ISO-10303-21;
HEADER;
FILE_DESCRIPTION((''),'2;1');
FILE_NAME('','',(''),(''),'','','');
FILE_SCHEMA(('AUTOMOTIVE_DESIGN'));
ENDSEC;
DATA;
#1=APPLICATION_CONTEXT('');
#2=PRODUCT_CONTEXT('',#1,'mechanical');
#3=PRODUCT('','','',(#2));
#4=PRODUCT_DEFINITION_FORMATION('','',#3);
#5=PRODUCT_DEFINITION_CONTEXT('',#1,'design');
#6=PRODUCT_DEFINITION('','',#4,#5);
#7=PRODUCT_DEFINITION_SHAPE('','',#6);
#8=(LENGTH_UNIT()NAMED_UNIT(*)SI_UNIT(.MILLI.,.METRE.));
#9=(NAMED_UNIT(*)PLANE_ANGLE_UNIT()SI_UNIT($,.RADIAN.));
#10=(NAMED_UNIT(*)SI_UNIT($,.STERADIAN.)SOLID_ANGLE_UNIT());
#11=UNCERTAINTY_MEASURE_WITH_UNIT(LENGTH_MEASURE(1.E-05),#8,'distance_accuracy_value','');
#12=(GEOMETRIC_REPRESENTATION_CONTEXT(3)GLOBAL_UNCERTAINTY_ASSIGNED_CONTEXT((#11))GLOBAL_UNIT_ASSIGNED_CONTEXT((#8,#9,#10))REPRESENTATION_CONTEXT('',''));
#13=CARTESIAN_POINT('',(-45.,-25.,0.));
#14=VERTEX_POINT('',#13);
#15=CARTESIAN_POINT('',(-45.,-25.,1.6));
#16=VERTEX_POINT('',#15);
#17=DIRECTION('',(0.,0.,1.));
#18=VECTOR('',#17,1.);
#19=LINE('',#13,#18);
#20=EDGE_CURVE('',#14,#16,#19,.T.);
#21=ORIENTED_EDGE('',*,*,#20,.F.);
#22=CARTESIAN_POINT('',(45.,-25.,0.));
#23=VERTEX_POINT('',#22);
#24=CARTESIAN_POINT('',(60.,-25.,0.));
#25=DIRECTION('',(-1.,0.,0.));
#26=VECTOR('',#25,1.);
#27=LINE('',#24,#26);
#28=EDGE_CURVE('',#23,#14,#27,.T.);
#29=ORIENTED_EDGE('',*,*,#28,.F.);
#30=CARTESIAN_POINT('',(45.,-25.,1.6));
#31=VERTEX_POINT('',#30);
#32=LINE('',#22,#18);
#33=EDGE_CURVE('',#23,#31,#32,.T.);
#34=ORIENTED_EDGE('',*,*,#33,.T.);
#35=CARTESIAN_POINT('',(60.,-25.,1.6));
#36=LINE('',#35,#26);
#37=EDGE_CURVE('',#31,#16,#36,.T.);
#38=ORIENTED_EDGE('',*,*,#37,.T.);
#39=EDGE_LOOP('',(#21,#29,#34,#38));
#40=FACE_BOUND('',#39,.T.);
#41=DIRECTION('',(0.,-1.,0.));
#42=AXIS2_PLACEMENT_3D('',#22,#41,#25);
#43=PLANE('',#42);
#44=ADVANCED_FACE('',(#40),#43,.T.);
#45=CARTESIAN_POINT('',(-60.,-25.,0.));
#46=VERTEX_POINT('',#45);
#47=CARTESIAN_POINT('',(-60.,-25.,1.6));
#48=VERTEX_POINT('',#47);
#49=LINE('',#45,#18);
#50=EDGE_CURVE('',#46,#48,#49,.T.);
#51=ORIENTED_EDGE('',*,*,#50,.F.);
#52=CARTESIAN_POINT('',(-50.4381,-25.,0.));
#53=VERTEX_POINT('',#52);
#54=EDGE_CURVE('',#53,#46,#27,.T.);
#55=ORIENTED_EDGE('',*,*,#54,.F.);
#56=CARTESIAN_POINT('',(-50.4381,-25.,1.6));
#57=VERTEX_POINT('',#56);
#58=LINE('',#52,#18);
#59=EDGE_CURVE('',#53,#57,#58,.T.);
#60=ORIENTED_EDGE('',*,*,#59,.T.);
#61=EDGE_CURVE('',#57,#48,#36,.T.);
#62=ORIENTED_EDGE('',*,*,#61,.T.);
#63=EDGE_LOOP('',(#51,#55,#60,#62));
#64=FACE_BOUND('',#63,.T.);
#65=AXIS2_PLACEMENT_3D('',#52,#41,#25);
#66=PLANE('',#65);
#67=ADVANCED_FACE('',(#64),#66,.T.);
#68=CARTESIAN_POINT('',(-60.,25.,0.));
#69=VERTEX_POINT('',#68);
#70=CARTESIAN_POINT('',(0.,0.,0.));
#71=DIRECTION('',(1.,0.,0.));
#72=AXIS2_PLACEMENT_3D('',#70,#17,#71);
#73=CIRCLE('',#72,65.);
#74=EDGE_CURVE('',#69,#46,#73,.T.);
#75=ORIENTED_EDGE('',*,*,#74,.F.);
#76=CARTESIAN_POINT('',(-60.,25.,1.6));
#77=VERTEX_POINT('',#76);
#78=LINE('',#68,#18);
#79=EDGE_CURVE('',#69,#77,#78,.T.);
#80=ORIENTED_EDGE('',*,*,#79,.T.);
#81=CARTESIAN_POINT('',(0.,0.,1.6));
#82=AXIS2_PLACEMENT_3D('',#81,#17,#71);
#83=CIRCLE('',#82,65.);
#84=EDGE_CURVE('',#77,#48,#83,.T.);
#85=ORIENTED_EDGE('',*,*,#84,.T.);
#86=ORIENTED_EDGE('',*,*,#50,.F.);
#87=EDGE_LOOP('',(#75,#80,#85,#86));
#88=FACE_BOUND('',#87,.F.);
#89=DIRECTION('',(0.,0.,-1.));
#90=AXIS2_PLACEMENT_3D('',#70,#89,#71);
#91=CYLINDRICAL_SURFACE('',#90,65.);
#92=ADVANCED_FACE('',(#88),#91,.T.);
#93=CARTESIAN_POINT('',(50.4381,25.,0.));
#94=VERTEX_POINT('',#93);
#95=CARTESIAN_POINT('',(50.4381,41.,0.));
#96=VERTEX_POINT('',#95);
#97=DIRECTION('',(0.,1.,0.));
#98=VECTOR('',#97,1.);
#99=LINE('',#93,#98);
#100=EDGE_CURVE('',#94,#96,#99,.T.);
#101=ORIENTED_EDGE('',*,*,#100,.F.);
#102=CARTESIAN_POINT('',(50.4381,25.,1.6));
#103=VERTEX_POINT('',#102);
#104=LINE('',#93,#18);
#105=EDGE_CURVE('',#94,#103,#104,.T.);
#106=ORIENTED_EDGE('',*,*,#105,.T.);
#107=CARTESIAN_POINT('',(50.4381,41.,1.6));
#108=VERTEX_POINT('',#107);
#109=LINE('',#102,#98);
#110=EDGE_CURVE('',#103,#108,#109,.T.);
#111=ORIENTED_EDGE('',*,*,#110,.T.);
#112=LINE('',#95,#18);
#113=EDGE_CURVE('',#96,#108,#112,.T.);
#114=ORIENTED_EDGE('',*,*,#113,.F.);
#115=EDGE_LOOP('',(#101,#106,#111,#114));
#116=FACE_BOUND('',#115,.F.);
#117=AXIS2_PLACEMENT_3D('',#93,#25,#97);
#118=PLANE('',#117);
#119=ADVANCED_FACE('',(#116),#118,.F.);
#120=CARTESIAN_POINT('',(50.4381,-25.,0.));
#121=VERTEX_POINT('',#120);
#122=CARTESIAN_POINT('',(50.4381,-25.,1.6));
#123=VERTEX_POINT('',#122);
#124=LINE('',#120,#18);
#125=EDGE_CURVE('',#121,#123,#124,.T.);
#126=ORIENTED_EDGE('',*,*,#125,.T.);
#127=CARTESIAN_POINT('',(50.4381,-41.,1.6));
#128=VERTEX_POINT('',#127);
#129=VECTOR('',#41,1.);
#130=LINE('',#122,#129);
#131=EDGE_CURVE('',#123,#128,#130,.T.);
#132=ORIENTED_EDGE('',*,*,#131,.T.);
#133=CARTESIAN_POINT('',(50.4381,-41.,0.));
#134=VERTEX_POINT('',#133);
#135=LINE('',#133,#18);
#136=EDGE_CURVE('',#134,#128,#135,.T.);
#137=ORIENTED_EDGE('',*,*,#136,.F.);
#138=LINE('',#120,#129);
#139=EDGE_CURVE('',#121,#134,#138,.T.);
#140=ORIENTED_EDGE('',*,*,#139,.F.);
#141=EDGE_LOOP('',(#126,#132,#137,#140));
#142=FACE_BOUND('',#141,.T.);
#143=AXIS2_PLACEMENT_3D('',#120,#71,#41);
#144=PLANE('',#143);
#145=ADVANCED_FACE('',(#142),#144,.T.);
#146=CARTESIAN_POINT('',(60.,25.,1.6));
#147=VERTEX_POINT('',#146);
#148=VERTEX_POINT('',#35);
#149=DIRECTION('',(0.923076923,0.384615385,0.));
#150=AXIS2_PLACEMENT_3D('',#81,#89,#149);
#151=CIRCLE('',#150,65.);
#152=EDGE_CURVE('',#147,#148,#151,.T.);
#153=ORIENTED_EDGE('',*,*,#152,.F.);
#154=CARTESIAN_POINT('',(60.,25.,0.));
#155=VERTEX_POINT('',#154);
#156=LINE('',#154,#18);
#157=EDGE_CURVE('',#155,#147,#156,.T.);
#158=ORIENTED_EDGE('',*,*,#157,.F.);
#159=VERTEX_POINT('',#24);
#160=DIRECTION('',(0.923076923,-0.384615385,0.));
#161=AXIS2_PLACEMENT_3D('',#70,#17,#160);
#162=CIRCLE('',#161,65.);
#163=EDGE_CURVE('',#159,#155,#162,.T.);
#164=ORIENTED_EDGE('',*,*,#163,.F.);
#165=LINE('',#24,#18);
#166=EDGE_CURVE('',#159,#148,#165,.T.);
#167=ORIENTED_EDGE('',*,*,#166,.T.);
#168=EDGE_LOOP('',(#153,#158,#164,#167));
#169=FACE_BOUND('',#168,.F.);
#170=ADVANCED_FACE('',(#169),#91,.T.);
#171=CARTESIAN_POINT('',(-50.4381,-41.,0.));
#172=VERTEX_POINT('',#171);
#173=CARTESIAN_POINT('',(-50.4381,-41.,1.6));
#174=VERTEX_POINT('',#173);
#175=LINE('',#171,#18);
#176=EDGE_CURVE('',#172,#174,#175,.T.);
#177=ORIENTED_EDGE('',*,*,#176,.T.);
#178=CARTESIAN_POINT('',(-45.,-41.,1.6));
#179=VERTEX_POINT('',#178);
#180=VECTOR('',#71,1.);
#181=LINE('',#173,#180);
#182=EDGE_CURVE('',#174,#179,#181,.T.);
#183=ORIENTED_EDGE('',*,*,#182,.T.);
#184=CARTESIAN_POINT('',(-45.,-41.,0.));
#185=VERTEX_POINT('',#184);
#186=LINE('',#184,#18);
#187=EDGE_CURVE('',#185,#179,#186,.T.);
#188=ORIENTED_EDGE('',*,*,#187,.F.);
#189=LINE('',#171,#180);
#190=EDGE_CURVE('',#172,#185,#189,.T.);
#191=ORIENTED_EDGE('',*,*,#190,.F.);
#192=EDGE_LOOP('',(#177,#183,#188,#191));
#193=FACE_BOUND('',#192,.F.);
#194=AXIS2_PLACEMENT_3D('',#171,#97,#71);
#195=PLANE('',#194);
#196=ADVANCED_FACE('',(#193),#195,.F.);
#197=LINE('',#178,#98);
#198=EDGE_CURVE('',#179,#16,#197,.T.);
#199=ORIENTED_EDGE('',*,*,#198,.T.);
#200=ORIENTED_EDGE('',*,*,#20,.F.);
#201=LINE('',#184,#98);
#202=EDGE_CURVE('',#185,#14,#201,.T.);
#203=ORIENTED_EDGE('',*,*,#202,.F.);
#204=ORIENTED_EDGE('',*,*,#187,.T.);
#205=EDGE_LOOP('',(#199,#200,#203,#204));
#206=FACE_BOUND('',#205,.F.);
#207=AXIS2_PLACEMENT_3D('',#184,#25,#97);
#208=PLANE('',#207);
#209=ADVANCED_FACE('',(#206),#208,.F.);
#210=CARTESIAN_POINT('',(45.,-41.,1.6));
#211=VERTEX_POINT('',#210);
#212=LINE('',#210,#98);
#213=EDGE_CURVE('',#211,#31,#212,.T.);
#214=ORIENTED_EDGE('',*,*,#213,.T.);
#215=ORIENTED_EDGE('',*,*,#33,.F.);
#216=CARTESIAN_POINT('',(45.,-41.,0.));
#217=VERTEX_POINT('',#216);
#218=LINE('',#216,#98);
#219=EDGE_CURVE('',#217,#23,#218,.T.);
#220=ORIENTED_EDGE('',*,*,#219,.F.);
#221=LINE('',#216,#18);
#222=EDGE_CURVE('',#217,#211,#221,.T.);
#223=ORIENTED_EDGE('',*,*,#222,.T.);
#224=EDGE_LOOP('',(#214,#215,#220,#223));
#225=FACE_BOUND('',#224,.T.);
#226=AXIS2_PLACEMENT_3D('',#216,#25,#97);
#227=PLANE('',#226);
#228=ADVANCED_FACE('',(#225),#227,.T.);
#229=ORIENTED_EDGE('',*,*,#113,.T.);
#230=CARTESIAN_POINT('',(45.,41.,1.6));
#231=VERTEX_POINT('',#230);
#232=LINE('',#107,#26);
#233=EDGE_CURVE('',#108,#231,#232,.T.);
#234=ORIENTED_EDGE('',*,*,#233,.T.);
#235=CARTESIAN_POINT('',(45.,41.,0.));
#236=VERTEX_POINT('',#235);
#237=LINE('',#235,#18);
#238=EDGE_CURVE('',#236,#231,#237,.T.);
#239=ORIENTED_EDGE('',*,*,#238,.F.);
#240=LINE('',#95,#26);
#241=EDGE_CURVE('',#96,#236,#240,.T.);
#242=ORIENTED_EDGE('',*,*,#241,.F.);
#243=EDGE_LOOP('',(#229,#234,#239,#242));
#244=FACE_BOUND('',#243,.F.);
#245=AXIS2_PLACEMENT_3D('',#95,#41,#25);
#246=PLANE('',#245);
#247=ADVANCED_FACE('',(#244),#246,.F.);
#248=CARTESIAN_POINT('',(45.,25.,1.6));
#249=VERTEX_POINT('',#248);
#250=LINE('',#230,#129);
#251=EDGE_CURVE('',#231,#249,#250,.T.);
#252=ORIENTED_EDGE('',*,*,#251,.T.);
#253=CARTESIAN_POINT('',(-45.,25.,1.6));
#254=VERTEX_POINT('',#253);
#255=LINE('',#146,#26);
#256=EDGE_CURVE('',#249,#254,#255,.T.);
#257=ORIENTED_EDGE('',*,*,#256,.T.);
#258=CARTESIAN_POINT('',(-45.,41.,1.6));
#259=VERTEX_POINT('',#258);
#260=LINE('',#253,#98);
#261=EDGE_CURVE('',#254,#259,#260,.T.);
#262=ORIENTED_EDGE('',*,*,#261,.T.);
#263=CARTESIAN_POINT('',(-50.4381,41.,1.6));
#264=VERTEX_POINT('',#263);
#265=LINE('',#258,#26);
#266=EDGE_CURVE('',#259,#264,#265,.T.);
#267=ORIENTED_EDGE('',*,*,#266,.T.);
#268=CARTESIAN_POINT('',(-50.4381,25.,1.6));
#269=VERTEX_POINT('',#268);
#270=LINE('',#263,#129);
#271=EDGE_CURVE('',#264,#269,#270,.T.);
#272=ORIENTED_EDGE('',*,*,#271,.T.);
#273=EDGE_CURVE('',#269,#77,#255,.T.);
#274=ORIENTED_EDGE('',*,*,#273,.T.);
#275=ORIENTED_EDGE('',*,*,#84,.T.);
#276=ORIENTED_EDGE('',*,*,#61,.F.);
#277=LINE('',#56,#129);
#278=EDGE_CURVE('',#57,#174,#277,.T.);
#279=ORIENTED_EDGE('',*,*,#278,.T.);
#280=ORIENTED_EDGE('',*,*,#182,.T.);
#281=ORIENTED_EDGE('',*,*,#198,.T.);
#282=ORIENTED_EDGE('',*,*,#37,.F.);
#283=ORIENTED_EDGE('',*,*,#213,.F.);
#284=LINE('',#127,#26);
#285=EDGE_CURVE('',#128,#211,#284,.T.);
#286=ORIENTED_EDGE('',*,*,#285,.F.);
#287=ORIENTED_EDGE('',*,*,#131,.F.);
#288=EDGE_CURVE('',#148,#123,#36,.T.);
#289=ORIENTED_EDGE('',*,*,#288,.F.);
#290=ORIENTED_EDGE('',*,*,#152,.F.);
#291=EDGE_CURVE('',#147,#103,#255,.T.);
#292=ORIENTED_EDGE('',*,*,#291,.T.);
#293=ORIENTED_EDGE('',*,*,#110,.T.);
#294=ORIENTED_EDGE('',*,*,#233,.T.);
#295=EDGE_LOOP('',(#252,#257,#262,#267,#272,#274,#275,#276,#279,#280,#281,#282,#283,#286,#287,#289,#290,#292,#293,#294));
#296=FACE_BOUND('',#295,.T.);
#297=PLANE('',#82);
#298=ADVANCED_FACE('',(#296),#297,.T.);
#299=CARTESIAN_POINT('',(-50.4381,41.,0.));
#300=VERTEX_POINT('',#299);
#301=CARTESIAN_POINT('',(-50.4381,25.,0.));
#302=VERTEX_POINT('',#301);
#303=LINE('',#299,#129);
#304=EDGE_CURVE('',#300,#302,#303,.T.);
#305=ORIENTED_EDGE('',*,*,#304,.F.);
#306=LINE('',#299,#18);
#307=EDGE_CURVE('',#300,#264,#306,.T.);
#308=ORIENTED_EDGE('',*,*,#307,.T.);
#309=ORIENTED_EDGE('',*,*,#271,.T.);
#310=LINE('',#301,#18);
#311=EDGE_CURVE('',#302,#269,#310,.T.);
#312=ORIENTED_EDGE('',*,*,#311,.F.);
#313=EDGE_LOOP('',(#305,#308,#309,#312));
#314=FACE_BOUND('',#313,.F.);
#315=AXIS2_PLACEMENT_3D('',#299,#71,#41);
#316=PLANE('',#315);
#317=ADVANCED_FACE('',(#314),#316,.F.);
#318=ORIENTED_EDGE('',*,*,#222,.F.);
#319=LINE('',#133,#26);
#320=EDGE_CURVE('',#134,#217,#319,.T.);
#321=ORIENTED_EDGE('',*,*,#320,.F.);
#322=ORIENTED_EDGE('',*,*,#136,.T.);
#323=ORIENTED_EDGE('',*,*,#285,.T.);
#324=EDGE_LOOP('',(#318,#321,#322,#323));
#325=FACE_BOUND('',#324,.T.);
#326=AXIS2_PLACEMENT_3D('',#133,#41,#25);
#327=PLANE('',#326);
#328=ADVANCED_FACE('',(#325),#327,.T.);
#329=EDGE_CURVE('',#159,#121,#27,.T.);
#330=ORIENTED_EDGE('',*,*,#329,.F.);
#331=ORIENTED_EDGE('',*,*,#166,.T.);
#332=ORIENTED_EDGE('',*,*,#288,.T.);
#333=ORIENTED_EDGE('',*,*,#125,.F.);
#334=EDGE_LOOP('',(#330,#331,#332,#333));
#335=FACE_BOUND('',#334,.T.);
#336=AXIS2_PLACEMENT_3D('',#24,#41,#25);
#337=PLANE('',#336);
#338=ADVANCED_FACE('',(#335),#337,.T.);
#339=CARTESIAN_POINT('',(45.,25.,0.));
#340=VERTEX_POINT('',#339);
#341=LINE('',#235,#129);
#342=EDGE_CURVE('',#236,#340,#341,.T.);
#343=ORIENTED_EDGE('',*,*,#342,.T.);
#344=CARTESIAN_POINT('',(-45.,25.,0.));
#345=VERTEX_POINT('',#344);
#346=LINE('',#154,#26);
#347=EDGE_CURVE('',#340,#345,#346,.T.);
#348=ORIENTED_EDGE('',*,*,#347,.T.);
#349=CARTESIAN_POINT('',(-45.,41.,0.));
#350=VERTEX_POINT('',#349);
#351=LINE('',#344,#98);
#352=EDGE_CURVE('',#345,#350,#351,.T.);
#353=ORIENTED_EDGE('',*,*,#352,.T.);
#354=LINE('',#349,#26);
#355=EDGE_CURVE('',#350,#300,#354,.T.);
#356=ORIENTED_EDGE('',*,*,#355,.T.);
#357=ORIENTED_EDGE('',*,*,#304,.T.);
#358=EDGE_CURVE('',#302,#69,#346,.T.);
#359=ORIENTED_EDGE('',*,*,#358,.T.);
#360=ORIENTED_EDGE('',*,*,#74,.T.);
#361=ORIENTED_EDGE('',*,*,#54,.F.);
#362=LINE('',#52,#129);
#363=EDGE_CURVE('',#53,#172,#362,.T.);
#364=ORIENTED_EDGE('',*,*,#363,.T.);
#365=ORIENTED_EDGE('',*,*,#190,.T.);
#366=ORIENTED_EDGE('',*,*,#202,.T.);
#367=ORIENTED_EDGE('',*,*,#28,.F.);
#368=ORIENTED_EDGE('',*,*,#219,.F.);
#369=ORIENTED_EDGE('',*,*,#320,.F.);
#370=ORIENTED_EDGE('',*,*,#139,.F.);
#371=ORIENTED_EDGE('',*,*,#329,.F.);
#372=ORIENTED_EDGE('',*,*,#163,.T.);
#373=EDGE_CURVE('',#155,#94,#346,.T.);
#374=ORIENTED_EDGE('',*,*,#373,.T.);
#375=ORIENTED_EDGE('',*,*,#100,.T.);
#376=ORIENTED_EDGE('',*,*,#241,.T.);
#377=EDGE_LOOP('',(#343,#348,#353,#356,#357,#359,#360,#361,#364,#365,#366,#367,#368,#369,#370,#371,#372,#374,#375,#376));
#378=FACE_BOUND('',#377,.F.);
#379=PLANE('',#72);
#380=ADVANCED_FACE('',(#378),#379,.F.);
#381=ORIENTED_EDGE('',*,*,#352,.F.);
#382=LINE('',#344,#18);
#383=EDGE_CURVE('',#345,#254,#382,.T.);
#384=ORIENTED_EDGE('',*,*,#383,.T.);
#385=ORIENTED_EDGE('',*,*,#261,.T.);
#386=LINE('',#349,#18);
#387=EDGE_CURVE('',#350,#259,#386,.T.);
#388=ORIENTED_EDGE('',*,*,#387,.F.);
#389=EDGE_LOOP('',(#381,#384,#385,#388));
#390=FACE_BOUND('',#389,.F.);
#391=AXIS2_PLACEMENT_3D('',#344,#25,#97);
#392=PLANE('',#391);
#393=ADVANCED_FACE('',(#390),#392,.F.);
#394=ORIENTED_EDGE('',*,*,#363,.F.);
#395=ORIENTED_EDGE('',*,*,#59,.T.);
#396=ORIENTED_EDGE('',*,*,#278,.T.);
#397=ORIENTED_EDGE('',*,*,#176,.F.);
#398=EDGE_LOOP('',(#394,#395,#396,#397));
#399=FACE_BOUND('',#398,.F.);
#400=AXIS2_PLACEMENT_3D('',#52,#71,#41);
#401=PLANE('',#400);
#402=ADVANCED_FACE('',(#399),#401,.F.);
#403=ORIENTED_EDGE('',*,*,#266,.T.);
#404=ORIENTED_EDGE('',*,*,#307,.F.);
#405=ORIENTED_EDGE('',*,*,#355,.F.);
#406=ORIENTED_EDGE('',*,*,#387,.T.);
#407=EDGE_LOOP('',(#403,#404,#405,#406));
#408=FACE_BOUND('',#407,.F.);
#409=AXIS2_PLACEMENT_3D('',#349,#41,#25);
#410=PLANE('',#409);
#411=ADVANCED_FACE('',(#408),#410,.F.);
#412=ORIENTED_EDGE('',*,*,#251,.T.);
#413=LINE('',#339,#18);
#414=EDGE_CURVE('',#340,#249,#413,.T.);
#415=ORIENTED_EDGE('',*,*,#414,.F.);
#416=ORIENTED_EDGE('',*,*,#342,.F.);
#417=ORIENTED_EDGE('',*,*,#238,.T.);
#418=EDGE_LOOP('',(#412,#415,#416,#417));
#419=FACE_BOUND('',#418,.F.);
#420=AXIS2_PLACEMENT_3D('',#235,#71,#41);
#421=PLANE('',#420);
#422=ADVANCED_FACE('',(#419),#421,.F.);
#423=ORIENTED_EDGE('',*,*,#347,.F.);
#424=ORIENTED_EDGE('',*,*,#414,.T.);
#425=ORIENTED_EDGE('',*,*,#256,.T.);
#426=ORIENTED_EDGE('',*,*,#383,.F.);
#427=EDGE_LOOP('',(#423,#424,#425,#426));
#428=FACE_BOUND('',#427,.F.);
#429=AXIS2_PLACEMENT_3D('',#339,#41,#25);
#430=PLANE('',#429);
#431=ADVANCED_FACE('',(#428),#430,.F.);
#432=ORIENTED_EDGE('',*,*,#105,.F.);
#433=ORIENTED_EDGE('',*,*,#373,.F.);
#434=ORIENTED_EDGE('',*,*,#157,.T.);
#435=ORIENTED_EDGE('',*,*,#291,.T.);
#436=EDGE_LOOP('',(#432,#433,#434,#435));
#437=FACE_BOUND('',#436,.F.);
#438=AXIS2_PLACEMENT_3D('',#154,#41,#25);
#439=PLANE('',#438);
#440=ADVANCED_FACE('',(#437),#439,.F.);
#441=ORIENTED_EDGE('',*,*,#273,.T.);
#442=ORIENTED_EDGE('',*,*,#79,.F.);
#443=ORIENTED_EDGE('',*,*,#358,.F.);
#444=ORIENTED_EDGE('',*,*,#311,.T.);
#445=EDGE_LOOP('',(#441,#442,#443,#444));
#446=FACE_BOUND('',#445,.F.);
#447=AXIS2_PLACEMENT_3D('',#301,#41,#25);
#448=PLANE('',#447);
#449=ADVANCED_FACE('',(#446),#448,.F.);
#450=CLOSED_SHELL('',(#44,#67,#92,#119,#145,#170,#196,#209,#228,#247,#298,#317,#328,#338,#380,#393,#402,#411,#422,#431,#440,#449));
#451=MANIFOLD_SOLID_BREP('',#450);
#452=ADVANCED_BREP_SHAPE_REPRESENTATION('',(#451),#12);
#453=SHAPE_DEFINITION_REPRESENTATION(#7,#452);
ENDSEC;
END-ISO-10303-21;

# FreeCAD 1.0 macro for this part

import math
import FreeCAD as App
import Part
import Sketcher
Q = App.Units.Quantity

doc = App.newDocument("Part")
body = doc.addObject("PartDesign::Body", "Body")

sketch1 = body.newObject("Sketcher::SketchObject", "Sketch")
sketch1.AttachmentSupport = (doc.getObject("XY_Plane"), [""])
sketch1.MapMode = "FlatFace"
sketch1.addGeometry([
    Part.ArcOfCircle(Part.Circle(App.Vector(0, 0, 0), App.Vector(0, 0, 1), 65), math.radians(-23), math.radians(23)),
    Part.LineSegment(App.Vector(60, 25, 0), App.Vector(50, 25, 0)),
    Part.LineSegment(App.Vector(50, 25, 0), App.Vector(50, 41, 0)),
    Part.LineSegment(App.Vector(50, 41, 0), App.Vector(45, 41, 0)),
    Part.LineSegment(App.Vector(45, 41, 0), App.Vector(45, 25, 0)),
    Part.LineSegment(App.Vector(45, 25, 0), App.Vector(-45, 25, 0)),
    Part.LineSegment(App.Vector(-45, 25, 0), App.Vector(-45, 41, 0)),
    Part.LineSegment(App.Vector(-45, 41, 0), App.Vector(-50, 41, 0)),
    Part.LineSegment(App.Vector(-50, 41, 0), App.Vector(-50, 25, 0)),
    Part.LineSegment(App.Vector(-50, 25, 0), App.Vector(-60, 25, 0)),
    Part.ArcOfCircle(Part.Circle(App.Vector(0, 0, 0), App.Vector(0, 0, 1), 65), math.radians(157), math.radians(203)),
    Part.LineSegment(App.Vector(-60, -25, 0), App.Vector(-50, -25, 0)),
    Part.LineSegment(App.Vector(-50, -25, 0), App.Vector(-50, -41, 0)),
    Part.LineSegment(App.Vector(-50, -41, 0), App.Vector(-45, -41, 0)),
    Part.LineSegment(App.Vector(-45, -41, 0), App.Vector(-45, -25, 0)),
    Part.LineSegment(App.Vector(-45, -25, 0), App.Vector(45, -25, 0)),
    Part.LineSegment(App.Vector(45, -25, 0), App.Vector(45, -41, 0)),
    Part.LineSegment(App.Vector(45, -41, 0), App.Vector(50, -41, 0)),
    Part.LineSegment(App.Vector(50, -41, 0), App.Vector(50, -25, 0)),
    Part.LineSegment(App.Vector(50, -25, 0), App.Vector(60, -25, 0)),
], False)
sketch1.addConstraint([
    Sketcher.Constraint("Coincident", 0, 2, 1, 1),
    Sketcher.Constraint("Coincident", 1, 2, 2, 1),
    Sketcher.Constraint("Coincident", 2, 2, 3, 1),
    Sketcher.Constraint("Coincident", 3, 2, 4, 1),
    Sketcher.Constraint("Coincident", 4, 2, 5, 1),
    Sketcher.Constraint("Coincident", 5, 2, 6, 1),
    Sketcher.Constraint("Coincident", 6, 2, 7, 1),
    Sketcher.Constraint("Coincident", 7, 2, 8, 1),
    Sketcher.Constraint("Coincident", 8, 2, 9, 1),
    Sketcher.Constraint("Coincident", 9, 2, 10, 1),
    Sketcher.Constraint("Coincident", 10, 2, 11, 1),
    Sketcher.Constraint("Coincident", 11, 2, 12, 1),
    Sketcher.Constraint("Coincident", 12, 2, 13, 1),
    Sketcher.Constraint("Coincident", 13, 2, 14, 1),
    Sketcher.Constraint("Coincident", 14, 2, 15, 1),
    Sketcher.Constraint("Coincident", 15, 2, 16, 1),
    Sketcher.Constraint("Coincident", 16, 2, 17, 1),
    Sketcher.Constraint("Coincident", 17, 2, 18, 1),
    Sketcher.Constraint("Coincident", 18, 2, 19, 1),
    Sketcher.Constraint("Coincident", 19, 2, 0, 1),
    Sketcher.Constraint("Horizontal", 1),
    Sketcher.Constraint("Vertical", 2),
    Sketcher.Constraint("Horizontal", 3),
    Sketcher.Constraint("Vertical", 4),
    Sketcher.Constraint("Horizontal", 5),
    Sketcher.Constraint("Vertical", 6),
    Sketcher.Constraint("Horizontal", 7),
    Sketcher.Constraint("Vertical", 8),
    Sketcher.Constraint("Horizontal", 9),
    Sketcher.Constraint("Horizontal", 11),
    Sketcher.Constraint("Vertical", 12),
    Sketcher.Constraint("Horizontal", 13),
    Sketcher.Constraint("Vertical", 14),
    Sketcher.Constraint("Horizontal", 15),
    Sketcher.Constraint("Vertical", 16),
    Sketcher.Constraint("Horizontal", 17),
    Sketcher.Constraint("Vertical", 18),
    Sketcher.Constraint("Horizontal", 19),
    Sketcher.Constraint("Coincident", 0, 3, -1, 1),
    Sketcher.Constraint("Coincident", 10, 3, -1, 1),
    Sketcher.Constraint("Equal", 0, 10),
    Sketcher.Constraint("Symmetric", 1, 2, 11, 2, -1, 1),
    Sketcher.Constraint("Symmetric", 3, 2, 13, 2, -1, 1),
    Sketcher.Constraint("Symmetric", 5, 2, 15, 2, -1, 1),
    Sketcher.Constraint("Symmetric", 7, 2, 17, 2, -1, 1),
    Sketcher.Constraint("Symmetric", 3, 2, 6, 2, -2),
    Sketcher.Constraint("Symmetric", 1, 2, 8, 2, -2),
    Sketcher.Constraint("Horizontal", 1, 2, 4, 2),
    Sketcher.Constraint("Horizontal", 15, 2, 18, 2),
    Sketcher.Constraint("Radius", 0, Q("65 mm")),
    Sketcher.Constraint("DistanceX", 5, 2, 5, 1, Q("90 mm")),
    Sketcher.Constraint("DistanceY", 2, 1, 2, 2, Q("16 mm")),
    Sketcher.Constraint("DistanceY", 10, 2, 9, 2, Q("50 mm")),
    Sketcher.Constraint("DistanceX", 1, 2, 1, 1, Q("9.562 mm")),
])
pad1 = body.newObject("PartDesign::Pad", "Pad")
pad1.Profile = sketch1
pad1.Length = 1.6

doc.recompute()
